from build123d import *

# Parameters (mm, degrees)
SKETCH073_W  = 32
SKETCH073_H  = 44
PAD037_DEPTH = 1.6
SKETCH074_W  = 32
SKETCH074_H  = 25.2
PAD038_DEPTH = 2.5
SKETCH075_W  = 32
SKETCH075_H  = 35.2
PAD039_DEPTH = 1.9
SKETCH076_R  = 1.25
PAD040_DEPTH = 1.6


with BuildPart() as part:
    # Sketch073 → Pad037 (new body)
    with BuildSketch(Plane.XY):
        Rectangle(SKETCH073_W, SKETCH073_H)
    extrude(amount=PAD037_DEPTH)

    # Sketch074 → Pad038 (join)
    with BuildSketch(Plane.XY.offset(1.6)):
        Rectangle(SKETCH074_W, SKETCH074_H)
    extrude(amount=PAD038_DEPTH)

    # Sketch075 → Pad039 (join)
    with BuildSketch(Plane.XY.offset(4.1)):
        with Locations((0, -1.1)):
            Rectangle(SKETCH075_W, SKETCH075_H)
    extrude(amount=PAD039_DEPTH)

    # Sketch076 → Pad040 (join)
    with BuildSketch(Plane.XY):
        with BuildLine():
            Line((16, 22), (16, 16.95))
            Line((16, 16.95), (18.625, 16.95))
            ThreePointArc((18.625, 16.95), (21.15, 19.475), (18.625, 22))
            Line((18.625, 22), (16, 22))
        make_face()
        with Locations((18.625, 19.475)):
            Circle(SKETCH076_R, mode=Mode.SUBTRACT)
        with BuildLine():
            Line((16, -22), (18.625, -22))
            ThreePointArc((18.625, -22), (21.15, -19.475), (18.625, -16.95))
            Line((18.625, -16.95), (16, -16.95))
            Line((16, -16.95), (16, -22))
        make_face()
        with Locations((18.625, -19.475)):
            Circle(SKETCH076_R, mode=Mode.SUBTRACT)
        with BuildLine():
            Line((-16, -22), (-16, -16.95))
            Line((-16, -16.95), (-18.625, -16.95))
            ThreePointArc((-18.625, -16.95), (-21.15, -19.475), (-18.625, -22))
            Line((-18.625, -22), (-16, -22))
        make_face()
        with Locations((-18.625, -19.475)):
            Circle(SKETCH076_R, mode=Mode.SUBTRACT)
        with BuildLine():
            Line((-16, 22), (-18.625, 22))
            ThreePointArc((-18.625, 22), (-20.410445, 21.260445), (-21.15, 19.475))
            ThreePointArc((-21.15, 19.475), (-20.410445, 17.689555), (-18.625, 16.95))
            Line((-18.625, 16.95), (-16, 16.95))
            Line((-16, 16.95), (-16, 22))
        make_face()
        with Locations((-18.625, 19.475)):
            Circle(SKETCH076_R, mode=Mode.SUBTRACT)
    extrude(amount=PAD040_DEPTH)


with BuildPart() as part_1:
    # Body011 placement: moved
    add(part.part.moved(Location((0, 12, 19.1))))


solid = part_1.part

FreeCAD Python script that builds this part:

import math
import FreeCAD as App
import Part
import Sketcher

doc = App.newDocument("Part")
body = doc.addObject("PartDesign::Body", "Body")

sketch1 = body.newObject("Sketcher::SketchObject", "Sketch")
sketch1.AttachmentSupport = (doc.getObject("XY_Plane"), [""])
sketch1.MapMode = "FlatFace"
sketch1.addGeometry(Part.LineSegment(App.Vector(-16, 22, 0), App.Vector(-16, -22, 0)), False)
sketch1.addGeometry(Part.LineSegment(App.Vector(-16, -22, 0), App.Vector(16, -22, 0)), False)
sketch1.addGeometry(Part.LineSegment(App.Vector(16, -22, 0), App.Vector(16, 22, 0)), False)
sketch1.addGeometry(Part.LineSegment(App.Vector(16, 22, 0), App.Vector(-16, 22, 0)), False)
sketch1.addConstraint(Sketcher.Constraint("Coincident", 0, 2, 1, 1))
sketch1.addConstraint(Sketcher.Constraint("Coincident", 1, 2, 2, 1))
sketch1.addConstraint(Sketcher.Constraint("Coincident", 2, 2, 3, 1))
sketch1.addConstraint(Sketcher.Constraint("Coincident", 3, 2, 0, 1))
sketch1.addConstraint(Sketcher.Constraint("Vertical", 0))
sketch1.addConstraint(Sketcher.Constraint("Horizontal", 1))
sketch1.addConstraint(Sketcher.Constraint("Vertical", 2))
sketch1.addConstraint(Sketcher.Constraint("Horizontal", 3))
sketch1.addConstraint(Sketcher.Constraint("Symmetric", 0, 2, 2, 2, -1, 1))
sketch1.addConstraint(Sketcher.Constraint("DistanceX", 1, 1, 1, 2, 32.0))
sketch1.addConstraint(Sketcher.Constraint("DistanceY", 0, 2, 0, 1, 44.0))
pad1 = body.newObject("PartDesign::Pad", "Pad")
pad1.Profile = sketch1
pad1.Length = 1.6

sketch2 = body.newObject("Sketcher::SketchObject", "Sketch001")
sketch2.AttachmentSupport = (doc.getObject("XY_Plane"), [""])
sketch2.MapMode = "FlatFace"
sketch2.AttachmentOffset = App.Placement(App.Vector(0, 0, 1.6), App.Rotation())
sketch2.addGeometry(Part.LineSegment(App.Vector(-16, 12.6, 0), App.Vector(-16, -12.6, 0)), False)
sketch2.addGeometry(Part.LineSegment(App.Vector(-16, -12.6, 0), App.Vector(16, -12.6, 0)), False)
sketch2.addGeometry(Part.LineSegment(App.Vector(16, -12.6, 0), App.Vector(16, 12.6, 0)), False)
sketch2.addGeometry(Part.LineSegment(App.Vector(16, 12.6, 0), App.Vector(-16, 12.6, 0)), False)
sketch2.addConstraint(Sketcher.Constraint("Coincident", 0, 2, 1, 1))
sketch2.addConstraint(Sketcher.Constraint("Coincident", 1, 2, 2, 1))
sketch2.addConstraint(Sketcher.Constraint("Coincident", 2, 2, 3, 1))
sketch2.addConstraint(Sketcher.Constraint("Coincident", 3, 2, 0, 1))
sketch2.addConstraint(Sketcher.Constraint("Vertical", 0))
sketch2.addConstraint(Sketcher.Constraint("Horizontal", 1))
sketch2.addConstraint(Sketcher.Constraint("Vertical", 2))
sketch2.addConstraint(Sketcher.Constraint("Horizontal", 3))
sketch2.addConstraint(Sketcher.Constraint("Symmetric", 0, 2, 2, 2, -1, 1))
sketch2.addConstraint(Sketcher.Constraint("DistanceX", 1, 1, 1, 2, 32.0))
sketch2.addConstraint(Sketcher.Constraint("DistanceY", 0, 2, 0, 1, 25.2))
pad2 = body.newObject("PartDesign::Pad", "Pad001")
pad2.Profile = sketch2
pad2.Length = 2.5

sketch3 = body.newObject("Sketcher::SketchObject", "Sketch002")
sketch3.AttachmentSupport = (doc.getObject("XY_Plane"), [""])
sketch3.MapMode = "FlatFace"
sketch3.AttachmentOffset = App.Placement(App.Vector(0, 0, 4.1), App.Rotation())
sketch3.addGeometry(Part.LineSegment(App.Vector(-16, 16.5, 0), App.Vector(-16, -18.7, 0)), False)
sketch3.addGeometry(Part.LineSegment(App.Vector(-16, -18.7, 0), App.Vector(16, -18.7, 0)), False)
sketch3.addGeometry(Part.LineSegment(App.Vector(16, -18.7, 0), App.Vector(16, 16.5, 0)), False)
sketch3.addGeometry(Part.LineSegment(App.Vector(16, 16.5, 0), App.Vector(-16, 16.5, 0)), False)
sketch3.addConstraint(Sketcher.Constraint("Coincident", 0, 2, 1, 1))
sketch3.addConstraint(Sketcher.Constraint("Coincident", 1, 2, 2, 1))
sketch3.addConstraint(Sketcher.Constraint("Coincident", 2, 2, 3, 1))
sketch3.addConstraint(Sketcher.Constraint("Coincident", 3, 2, 0, 1))
sketch3.addConstraint(Sketcher.Constraint("Vertical", 0))
sketch3.addConstraint(Sketcher.Constraint("Horizontal", 1))
sketch3.addConstraint(Sketcher.Constraint("Vertical", 2))
sketch3.addConstraint(Sketcher.Constraint("Horizontal", 3))
sketch3.addConstraint(Sketcher.Constraint("DistanceX", 1, 1, 1, 2, 32.0))
sketch3.addConstraint(Sketcher.Constraint("DistanceY", 0, 2, 0, 1, 35.2))
sketch3.addConstraint(Sketcher.Constraint("DistanceX", 0, 2, -1, 1, 16.0))
sketch3.addConstraint(Sketcher.Constraint("DistanceY", 0, 2, -1, 1, 18.7))
pad3 = body.newObject("PartDesign::Pad", "Pad002")
pad3.Profile = sketch3
pad3.Length = 1.9

sketch4 = body.newObject("Sketcher::SketchObject", "Sketch003")
sketch4.AttachmentSupport = (doc.getObject("XY_Plane"), [""])
sketch4.MapMode = "FlatFace"
sketch4.addGeometry(Part.LineSegment(App.Vector(16, 22, 0), App.Vector(16, 16.95, 0)), False)
sketch4.addGeometry(Part.LineSegment(App.Vector(16, 16.95, 0), App.Vector(18.625, 16.95, 0)), False)
sketch4.addGeometry(Part.ArcOfCircle(Part.Circle(App.Vector(18.625, 19.475, 0), App.Vector(0, 0, 1), 2.525), math.radians(-90), math.radians(90)), False)
sketch4.addGeometry(Part.LineSegment(App.Vector(18.625, 22, 0), App.Vector(16, 22, 0)), False)
sketch4.addGeometry(Part.Circle(App.Vector(18.625, 19.475, 0), App.Vector(0, 0, 1), 1.25), False)
sketch4.addGeometry(Part.LineSegment(App.Vector(16, -22, 0), App.Vector(18.625, -22, 0)), False)
sketch4.addGeometry(Part.ArcOfCircle(Part.Circle(App.Vector(18.625, -19.475, 0), App.Vector(0, 0, 1), 2.525), math.radians(-90), math.radians(90)), False)
sketch4.addGeometry(Part.LineSegment(App.Vector(18.625, -16.95, 0), App.Vector(16, -16.95, 0)), False)
sketch4.addGeometry(Part.LineSegment(App.Vector(16, -16.95, 0), App.Vector(16, -22, 0)), False)
sketch4.addGeometry(Part.Circle(App.Vector(18.625, -19.475, 0), App.Vector(0, 0, 1), 1.25), False)
sketch4.addGeometry(Part.LineSegment(App.Vector(-16, -22, 0), App.Vector(-16, -16.95, 0)), False)
sketch4.addGeometry(Part.LineSegment(App.Vector(-16, -16.95, 0), App.Vector(-18.625, -16.95, 0)), False)
sketch4.addGeometry(Part.ArcOfCircle(Part.Circle(App.Vector(-18.625, -19.475, 0), App.Vector(0, 0, 1), 2.525), math.radians(90), math.radians(270)), False)
sketch4.addGeometry(Part.LineSegment(App.Vector(-18.625, -22, 0), App.Vector(-16, -22, 0)), False)
sketch4.addGeometry(Part.Circle(App.Vector(-18.625, -19.475, 0), App.Vector(0, 0, 1), 1.25), False)
sketch4.addGeometry(Part.LineSegment(App.Vector(-16, 22, 0), App.Vector(-18.625, 22, 0)), False)
sketch4.addGeometry(Part.ArcOfCircle(Part.Circle(App.Vector(-18.625001, 19.475001, 0), App.Vector(0, 0, 1), 2.524999), math.radians(89.999971), math.radians(180.000029)), False)
sketch4.addGeometry(Part.ArcOfCircle(Part.Circle(App.Vector(-18.625001, 19.474999, 0), App.Vector(0, 0, 1), 2.524999), math.radians(179.999971), math.radians(270.000029)), False)
sketch4.addGeometry(Part.LineSegment(App.Vector(-18.625, 16.95, 0), App.Vector(-16, 16.95, 0)), False)
sketch4.addGeometry(Part.LineSegment(App.Vector(-16, 16.95, 0), App.Vector(-16, 22, 0)), False)
sketch4.addGeometry(Part.Circle(App.Vector(-18.625, 19.475, 0), App.Vector(0, 0, 1), 1.25), False)
sketch4.addConstraint(Sketcher.Constraint("Coincident", 0, 2, 1, 1))
sketch4.addConstraint(Sketcher.Constraint("Tangent", 1, 2, 2, 1))
sketch4.addConstraint(Sketcher.Constraint("Tangent", 2, 2, 3, 1))
sketch4.addConstraint(Sketcher.Constraint("Coincident", 3, 2, 0, 1))
sketch4.addConstraint(Sketcher.Constraint("Tangent", 5, 2, 6, 1))
sketch4.addConstraint(Sketcher.Constraint("Tangent", 6, 2, 7, 1))
sketch4.addConstraint(Sketcher.Constraint("Coincident", 7, 2, 8, 1))
sketch4.addConstraint(Sketcher.Constraint("Coincident", 8, 2, 5, 1))
sketch4.addConstraint(Sketcher.Constraint("Coincident", 10, 2, 11, 1))
sketch4.addConstraint(Sketcher.Constraint("Tangent", 11, 2, 12, 1))
sketch4.addConstraint(Sketcher.Constraint("Tangent", 12, 2, 13, 1))
sketch4.addConstraint(Sketcher.Constraint("Coincident", 13, 2, 10, 1))
sketch4.addConstraint(Sketcher.Constraint("Tangent", 15, 2, 16, 1))
sketch4.addConstraint(Sketcher.Constraint("Tangent", 16, 2, 17, 1))
sketch4.addConstraint(Sketcher.Constraint("Tangent", 17, 2, 18, 1))
sketch4.addConstraint(Sketcher.Constraint("Coincident", 18, 2, 19, 1))
sketch4.addConstraint(Sketcher.Constraint("Coincident", 19, 2, 15, 1))
sketch4.addConstraint(Sketcher.Constraint("Vertical", 0))
sketch4.addConstraint(Sketcher.Constraint("Horizontal", 1))
sketch4.addConstraint(Sketcher.Constraint("Horizontal", 3))
sketch4.addConstraint(Sketcher.Constraint("Horizontal", 5))
sketch4.addConstraint(Sketcher.Constraint("Horizontal", 7))
sketch4.addConstraint(Sketcher.Constraint("Vertical", 8))
sketch4.addConstraint(Sketcher.Constraint("Vertical", 10))
sketch4.addConstraint(Sketcher.Constraint("Horizontal", 11))
sketch4.addConstraint(Sketcher.Constraint("Horizontal", 13))
sketch4.addConstraint(Sketcher.Constraint("Horizontal", 15))
sketch4.addConstraint(Sketcher.Constraint("Horizontal", 18))
sketch4.addConstraint(Sketcher.Constraint("Vertical", 19))
sketch4.addConstraint(Sketcher.Constraint("Coincident", 4, 3, 2, 3))
sketch4.addConstraint(Sketcher.Constraint("Coincident", 9, 3, 6, 3))
sketch4.addConstraint(Sketcher.Constraint("Coincident", 14, 3, 12, 3))
sketch4.addConstraint(Sketcher.Constraint("Coincident", 20, 3, 16, 3))
sketch4.addConstraint(Sketcher.Constraint("Equal", 2, 6))
sketch4.addConstraint(Sketcher.Constraint("Equal", 4, 9))
sketch4.addConstraint(Sketcher.Constraint("Equal", 6, 12))
sketch4.addConstraint(Sketcher.Constraint("Equal", 9, 14))
sketch4.addConstraint(Sketcher.Constraint("Equal", 12, 16))
sketch4.addConstraint(Sketcher.Constraint("Equal", 16, 17))
sketch4.addConstraint(Sketcher.Constraint("Equal", 14, 20))
sketch4.addConstraint(Sketcher.Constraint("Symmetric", 2, 3, 12, 3, -1, 1))
sketch4.addConstraint(Sketcher.Constraint("Symmetric", 6, 3, 16, 3, -1, 1))
sketch4.addConstraint(Sketcher.Constraint("Symmetric", 6, 3, 12, 3, -2))
sketch4.addConstraint(Sketcher.Constraint("Horizontal", 20, 3, 16, 2))
sketch4.addConstraint(Sketcher.Constraint("Vertical", 3, 2, 7, 2))
sketch4.addConstraint(Sketcher.Constraint("Vertical", 13, 2, 18, 2))
sketch4.addConstraint(Sketcher.Constraint("Equal", 7, 11))
sketch4.addConstraint(Sketcher.Constraint("Diameter", 4, 2.5))
sketch4.addConstraint(Sketcher.Constraint("DistanceX", -1, 1, 0, 2, 16.0))
sketch4.addConstraint(Sketcher.Constraint("DistanceY", -1, 1, 2, 2, 22.0))
sketch4.addConstraint(Sketcher.Constraint("Radius", 2, 2.525))
sketch4.addConstraint(Sketcher.Constraint("DistanceX", 1, 1, 1, 2, 2.625))
pad4 = body.newObject("PartDesign::Pad", "Pad003")
pad4.Profile = sketch4
pad4.Length = 1.6
body2 = doc.addObject("PartDesign::Body", "Body001")
doc.recompute()

body.Placement = App.Placement(App.Vector(0, 12, 19.1), App.Rotation(App.Vector(0, 0, 1), 0))
boolean = body2.newObject("PartDesign::Boolean", "Boolean")
boolean.Type = "Fuse"
boolean.addObjects([body])

doc.recompute()
